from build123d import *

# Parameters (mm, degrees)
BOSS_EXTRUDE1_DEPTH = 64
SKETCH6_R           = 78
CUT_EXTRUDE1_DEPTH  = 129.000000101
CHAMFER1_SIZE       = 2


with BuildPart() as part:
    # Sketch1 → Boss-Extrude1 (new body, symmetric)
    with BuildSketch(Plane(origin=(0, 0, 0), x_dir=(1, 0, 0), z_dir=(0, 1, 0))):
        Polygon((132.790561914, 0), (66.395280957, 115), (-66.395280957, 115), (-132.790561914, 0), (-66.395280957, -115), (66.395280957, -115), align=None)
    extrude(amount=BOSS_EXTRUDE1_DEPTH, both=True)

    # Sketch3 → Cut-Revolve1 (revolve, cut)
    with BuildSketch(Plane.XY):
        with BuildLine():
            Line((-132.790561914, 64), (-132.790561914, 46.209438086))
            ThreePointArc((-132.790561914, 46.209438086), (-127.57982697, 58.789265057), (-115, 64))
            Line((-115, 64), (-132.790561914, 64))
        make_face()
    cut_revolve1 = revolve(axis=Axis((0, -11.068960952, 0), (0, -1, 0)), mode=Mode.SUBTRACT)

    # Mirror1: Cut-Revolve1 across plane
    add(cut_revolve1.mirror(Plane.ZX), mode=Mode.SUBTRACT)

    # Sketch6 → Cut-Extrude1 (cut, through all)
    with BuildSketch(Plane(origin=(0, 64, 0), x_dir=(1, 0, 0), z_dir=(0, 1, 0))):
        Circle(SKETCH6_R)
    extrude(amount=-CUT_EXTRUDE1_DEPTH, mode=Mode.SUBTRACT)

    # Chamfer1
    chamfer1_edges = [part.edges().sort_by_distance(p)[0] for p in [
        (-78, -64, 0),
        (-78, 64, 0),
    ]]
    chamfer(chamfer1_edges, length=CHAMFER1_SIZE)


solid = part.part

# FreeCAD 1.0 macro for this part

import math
import FreeCAD as App
import Part
import Sketcher

V = App.Vector
Q = App.Units.Quantity


def edges_at(feature, points):
    """Names of the edges that pass closest to the given points."""
    edges = feature.Shape.Edges
    near = lambda p: min(range(len(edges)), key=lambda i: edges[i].distToShape(Part.Vertex(*p))[0])
    return sorted({f"Edge{near(p) + 1}" for p in points})


def add_polygon(sketch, points):
    """Adds a closed chain of lines whose ends are joined by coincident constraints."""
    first, n = sketch.GeometryCount, len(points)
    for a, b in zip(points, points[1:] + points[:1]):
        sketch.addGeometry(Part.LineSegment(App.Vector(*a, 0), App.Vector(*b, 0)), False)
    for i in range(n):
        sketch.addConstraint(Sketcher.Constraint("Coincident", first + i, 2, first + (i + 1) % n, 1))

doc = App.newDocument("Part")
params = doc.addObject("Spreadsheet::Sheet", "Params")
for row, (alias, value) in enumerate([
    ("pad1_length", "128 mm"),
    ("groove_angle", "360 deg"),
    ("sketch3_diameter", "156 mm"),
    ("chamfer_size", "2 mm"),
], start=1):
    params.set(f"A{row}", alias)
    params.set(f"B{row}", "=" + value)
    params.setAlias(f"B{row}", alias)

body = doc.addObject("PartDesign::Body", "Body")

sketch1 = body.newObject("Sketcher::SketchObject", "Sketch")
sketch1.AttachmentSupport = (doc.getObject("XZ_Plane"), [""])
sketch1.MapMode = "FlatFace"
add_polygon(sketch1, [(133, 0), (66, -115), (-66, -115), (-133, 0), (-66, 115), (66, 115)])
sketch1.addConstraint(Sketcher.Constraint("Horizontal", 1))
sketch1.addConstraint(Sketcher.Constraint("Horizontal", 4))
sketch1.addConstraint(Sketcher.Constraint("Symmetric", 0, 2, 3, 2, -1, 1))
sketch1.addConstraint(Sketcher.Constraint("Symmetric", 2, 2, 5, 2, -1, 1))
sketch1.addConstraint(Sketcher.Constraint("PointOnObject", 2, 2, -1))
sketch1.addConstraint(Sketcher.Constraint("Parallel", 2, 5))
sketch1.addConstraint(Sketcher.Constraint("Vertical", 1, 2, 3, 2))
sketch1.addConstraint(Sketcher.Constraint("Angle", 0, Q("-120 deg")))
sketch1.addConstraint(Sketcher.Constraint("DistanceY", 0, 2, -1, 1, Q("115 mm")))
sketch1.addConstraint(Sketcher.Constraint("DistanceX", 1, 2, 1, 1, Q("132.790562 mm")))
pad1 = body.newObject("PartDesign::Pad", "Pad")
pad1.Profile = sketch1
pad1.setExpression("Length", "Params.pad1_length")
pad1.Midplane = True

sketch2 = body.newObject("Sketcher::SketchObject", "Sketch001")
sketch2.AttachmentSupport = (doc.getObject("XY_Plane"), [""])
sketch2.MapMode = "FlatFace"
sketch2.addGeometry(Part.LineSegment(V(-133, 64, 0), V(-133, 46, 0)), False)
sketch2.addGeometry(Part.ArcOfCircle(Part.Circle(V(-115, 46, 0), V(0, 0, 1), 18), math.radians(90), math.radians(180)), False)
sketch2.addGeometry(Part.LineSegment(V(-115, 64, 0), V(-133, 64, 0)), False)
sketch2.addConstraint(Sketcher.Constraint("Tangent", 0, 2, 1, 2))
sketch2.addConstraint(Sketcher.Constraint("Tangent", 1, 1, 2, 1))
sketch2.addConstraint(Sketcher.Constraint("Coincident", 2, 2, 0, 1))
sketch2.addConstraint(Sketcher.Constraint("Vertical", 0))
sketch2.addConstraint(Sketcher.Constraint("Horizontal", 2))
sketch2.addConstraint(Sketcher.Constraint("DistanceX", 1, 3, -1, 1, Q("115 mm")))
sketch2.addConstraint(Sketcher.Constraint("DistanceY", -1, 1, 1, 1, Q("64 mm")))
sketch2.addConstraint(Sketcher.Constraint("Radius", 1, Q("17.790562 mm")))
groove = body.newObject("PartDesign::Groove", "Groove")
groove.Profile = sketch2
groove.ReferenceAxis = (sketch2, ["V_Axis"])
groove.setExpression("Angle", "Params.groove_angle")
doc.recompute()

mirrored = body.newObject("PartDesign::Mirrored", "Mirrored")
mirrored.Originals = [groove]
mirrored.MirrorPlane = (doc.getObject("XZ_Plane"), [""])
body.Tip = mirrored

sketch3 = body.newObject("Sketcher::SketchObject", "Sketch002")
sketch3.AttachmentSupport = (doc.getObject("XZ_Plane"), [""])
sketch3.MapMode = "FlatFace"
sketch3.AttachmentOffset = App.Placement(V(0, 0, -64), App.Rotation())
sketch3.addGeometry(Part.Circle(V(0, 0, 0), V(0, 0, 1), 78), False)
sketch3.addConstraint(Sketcher.Constraint("Coincident", 0, 3, -1, 1))
sketch3.addConstraint(Sketcher.Constraint("Diameter", 0, Q("156 mm")))
sketch3.setExpression("Constraints[1]", "Params.sketch3_diameter")
pocket1 = body.newObject("PartDesign::Pocket", "Pocket")
pocket1.Profile = sketch3
pocket1.Type = "ThroughAll"
pocket1.Reversed = True
doc.recompute()

chamfer = body.newObject("PartDesign::Chamfer", "Chamfer")
chamfer.Base = (pocket1, edges_at(pocket1, [(-78, -64, 0), (-78, 64, 0)]))
chamfer.setExpression("Size", "Params.chamfer_size")

doc.recompute()
